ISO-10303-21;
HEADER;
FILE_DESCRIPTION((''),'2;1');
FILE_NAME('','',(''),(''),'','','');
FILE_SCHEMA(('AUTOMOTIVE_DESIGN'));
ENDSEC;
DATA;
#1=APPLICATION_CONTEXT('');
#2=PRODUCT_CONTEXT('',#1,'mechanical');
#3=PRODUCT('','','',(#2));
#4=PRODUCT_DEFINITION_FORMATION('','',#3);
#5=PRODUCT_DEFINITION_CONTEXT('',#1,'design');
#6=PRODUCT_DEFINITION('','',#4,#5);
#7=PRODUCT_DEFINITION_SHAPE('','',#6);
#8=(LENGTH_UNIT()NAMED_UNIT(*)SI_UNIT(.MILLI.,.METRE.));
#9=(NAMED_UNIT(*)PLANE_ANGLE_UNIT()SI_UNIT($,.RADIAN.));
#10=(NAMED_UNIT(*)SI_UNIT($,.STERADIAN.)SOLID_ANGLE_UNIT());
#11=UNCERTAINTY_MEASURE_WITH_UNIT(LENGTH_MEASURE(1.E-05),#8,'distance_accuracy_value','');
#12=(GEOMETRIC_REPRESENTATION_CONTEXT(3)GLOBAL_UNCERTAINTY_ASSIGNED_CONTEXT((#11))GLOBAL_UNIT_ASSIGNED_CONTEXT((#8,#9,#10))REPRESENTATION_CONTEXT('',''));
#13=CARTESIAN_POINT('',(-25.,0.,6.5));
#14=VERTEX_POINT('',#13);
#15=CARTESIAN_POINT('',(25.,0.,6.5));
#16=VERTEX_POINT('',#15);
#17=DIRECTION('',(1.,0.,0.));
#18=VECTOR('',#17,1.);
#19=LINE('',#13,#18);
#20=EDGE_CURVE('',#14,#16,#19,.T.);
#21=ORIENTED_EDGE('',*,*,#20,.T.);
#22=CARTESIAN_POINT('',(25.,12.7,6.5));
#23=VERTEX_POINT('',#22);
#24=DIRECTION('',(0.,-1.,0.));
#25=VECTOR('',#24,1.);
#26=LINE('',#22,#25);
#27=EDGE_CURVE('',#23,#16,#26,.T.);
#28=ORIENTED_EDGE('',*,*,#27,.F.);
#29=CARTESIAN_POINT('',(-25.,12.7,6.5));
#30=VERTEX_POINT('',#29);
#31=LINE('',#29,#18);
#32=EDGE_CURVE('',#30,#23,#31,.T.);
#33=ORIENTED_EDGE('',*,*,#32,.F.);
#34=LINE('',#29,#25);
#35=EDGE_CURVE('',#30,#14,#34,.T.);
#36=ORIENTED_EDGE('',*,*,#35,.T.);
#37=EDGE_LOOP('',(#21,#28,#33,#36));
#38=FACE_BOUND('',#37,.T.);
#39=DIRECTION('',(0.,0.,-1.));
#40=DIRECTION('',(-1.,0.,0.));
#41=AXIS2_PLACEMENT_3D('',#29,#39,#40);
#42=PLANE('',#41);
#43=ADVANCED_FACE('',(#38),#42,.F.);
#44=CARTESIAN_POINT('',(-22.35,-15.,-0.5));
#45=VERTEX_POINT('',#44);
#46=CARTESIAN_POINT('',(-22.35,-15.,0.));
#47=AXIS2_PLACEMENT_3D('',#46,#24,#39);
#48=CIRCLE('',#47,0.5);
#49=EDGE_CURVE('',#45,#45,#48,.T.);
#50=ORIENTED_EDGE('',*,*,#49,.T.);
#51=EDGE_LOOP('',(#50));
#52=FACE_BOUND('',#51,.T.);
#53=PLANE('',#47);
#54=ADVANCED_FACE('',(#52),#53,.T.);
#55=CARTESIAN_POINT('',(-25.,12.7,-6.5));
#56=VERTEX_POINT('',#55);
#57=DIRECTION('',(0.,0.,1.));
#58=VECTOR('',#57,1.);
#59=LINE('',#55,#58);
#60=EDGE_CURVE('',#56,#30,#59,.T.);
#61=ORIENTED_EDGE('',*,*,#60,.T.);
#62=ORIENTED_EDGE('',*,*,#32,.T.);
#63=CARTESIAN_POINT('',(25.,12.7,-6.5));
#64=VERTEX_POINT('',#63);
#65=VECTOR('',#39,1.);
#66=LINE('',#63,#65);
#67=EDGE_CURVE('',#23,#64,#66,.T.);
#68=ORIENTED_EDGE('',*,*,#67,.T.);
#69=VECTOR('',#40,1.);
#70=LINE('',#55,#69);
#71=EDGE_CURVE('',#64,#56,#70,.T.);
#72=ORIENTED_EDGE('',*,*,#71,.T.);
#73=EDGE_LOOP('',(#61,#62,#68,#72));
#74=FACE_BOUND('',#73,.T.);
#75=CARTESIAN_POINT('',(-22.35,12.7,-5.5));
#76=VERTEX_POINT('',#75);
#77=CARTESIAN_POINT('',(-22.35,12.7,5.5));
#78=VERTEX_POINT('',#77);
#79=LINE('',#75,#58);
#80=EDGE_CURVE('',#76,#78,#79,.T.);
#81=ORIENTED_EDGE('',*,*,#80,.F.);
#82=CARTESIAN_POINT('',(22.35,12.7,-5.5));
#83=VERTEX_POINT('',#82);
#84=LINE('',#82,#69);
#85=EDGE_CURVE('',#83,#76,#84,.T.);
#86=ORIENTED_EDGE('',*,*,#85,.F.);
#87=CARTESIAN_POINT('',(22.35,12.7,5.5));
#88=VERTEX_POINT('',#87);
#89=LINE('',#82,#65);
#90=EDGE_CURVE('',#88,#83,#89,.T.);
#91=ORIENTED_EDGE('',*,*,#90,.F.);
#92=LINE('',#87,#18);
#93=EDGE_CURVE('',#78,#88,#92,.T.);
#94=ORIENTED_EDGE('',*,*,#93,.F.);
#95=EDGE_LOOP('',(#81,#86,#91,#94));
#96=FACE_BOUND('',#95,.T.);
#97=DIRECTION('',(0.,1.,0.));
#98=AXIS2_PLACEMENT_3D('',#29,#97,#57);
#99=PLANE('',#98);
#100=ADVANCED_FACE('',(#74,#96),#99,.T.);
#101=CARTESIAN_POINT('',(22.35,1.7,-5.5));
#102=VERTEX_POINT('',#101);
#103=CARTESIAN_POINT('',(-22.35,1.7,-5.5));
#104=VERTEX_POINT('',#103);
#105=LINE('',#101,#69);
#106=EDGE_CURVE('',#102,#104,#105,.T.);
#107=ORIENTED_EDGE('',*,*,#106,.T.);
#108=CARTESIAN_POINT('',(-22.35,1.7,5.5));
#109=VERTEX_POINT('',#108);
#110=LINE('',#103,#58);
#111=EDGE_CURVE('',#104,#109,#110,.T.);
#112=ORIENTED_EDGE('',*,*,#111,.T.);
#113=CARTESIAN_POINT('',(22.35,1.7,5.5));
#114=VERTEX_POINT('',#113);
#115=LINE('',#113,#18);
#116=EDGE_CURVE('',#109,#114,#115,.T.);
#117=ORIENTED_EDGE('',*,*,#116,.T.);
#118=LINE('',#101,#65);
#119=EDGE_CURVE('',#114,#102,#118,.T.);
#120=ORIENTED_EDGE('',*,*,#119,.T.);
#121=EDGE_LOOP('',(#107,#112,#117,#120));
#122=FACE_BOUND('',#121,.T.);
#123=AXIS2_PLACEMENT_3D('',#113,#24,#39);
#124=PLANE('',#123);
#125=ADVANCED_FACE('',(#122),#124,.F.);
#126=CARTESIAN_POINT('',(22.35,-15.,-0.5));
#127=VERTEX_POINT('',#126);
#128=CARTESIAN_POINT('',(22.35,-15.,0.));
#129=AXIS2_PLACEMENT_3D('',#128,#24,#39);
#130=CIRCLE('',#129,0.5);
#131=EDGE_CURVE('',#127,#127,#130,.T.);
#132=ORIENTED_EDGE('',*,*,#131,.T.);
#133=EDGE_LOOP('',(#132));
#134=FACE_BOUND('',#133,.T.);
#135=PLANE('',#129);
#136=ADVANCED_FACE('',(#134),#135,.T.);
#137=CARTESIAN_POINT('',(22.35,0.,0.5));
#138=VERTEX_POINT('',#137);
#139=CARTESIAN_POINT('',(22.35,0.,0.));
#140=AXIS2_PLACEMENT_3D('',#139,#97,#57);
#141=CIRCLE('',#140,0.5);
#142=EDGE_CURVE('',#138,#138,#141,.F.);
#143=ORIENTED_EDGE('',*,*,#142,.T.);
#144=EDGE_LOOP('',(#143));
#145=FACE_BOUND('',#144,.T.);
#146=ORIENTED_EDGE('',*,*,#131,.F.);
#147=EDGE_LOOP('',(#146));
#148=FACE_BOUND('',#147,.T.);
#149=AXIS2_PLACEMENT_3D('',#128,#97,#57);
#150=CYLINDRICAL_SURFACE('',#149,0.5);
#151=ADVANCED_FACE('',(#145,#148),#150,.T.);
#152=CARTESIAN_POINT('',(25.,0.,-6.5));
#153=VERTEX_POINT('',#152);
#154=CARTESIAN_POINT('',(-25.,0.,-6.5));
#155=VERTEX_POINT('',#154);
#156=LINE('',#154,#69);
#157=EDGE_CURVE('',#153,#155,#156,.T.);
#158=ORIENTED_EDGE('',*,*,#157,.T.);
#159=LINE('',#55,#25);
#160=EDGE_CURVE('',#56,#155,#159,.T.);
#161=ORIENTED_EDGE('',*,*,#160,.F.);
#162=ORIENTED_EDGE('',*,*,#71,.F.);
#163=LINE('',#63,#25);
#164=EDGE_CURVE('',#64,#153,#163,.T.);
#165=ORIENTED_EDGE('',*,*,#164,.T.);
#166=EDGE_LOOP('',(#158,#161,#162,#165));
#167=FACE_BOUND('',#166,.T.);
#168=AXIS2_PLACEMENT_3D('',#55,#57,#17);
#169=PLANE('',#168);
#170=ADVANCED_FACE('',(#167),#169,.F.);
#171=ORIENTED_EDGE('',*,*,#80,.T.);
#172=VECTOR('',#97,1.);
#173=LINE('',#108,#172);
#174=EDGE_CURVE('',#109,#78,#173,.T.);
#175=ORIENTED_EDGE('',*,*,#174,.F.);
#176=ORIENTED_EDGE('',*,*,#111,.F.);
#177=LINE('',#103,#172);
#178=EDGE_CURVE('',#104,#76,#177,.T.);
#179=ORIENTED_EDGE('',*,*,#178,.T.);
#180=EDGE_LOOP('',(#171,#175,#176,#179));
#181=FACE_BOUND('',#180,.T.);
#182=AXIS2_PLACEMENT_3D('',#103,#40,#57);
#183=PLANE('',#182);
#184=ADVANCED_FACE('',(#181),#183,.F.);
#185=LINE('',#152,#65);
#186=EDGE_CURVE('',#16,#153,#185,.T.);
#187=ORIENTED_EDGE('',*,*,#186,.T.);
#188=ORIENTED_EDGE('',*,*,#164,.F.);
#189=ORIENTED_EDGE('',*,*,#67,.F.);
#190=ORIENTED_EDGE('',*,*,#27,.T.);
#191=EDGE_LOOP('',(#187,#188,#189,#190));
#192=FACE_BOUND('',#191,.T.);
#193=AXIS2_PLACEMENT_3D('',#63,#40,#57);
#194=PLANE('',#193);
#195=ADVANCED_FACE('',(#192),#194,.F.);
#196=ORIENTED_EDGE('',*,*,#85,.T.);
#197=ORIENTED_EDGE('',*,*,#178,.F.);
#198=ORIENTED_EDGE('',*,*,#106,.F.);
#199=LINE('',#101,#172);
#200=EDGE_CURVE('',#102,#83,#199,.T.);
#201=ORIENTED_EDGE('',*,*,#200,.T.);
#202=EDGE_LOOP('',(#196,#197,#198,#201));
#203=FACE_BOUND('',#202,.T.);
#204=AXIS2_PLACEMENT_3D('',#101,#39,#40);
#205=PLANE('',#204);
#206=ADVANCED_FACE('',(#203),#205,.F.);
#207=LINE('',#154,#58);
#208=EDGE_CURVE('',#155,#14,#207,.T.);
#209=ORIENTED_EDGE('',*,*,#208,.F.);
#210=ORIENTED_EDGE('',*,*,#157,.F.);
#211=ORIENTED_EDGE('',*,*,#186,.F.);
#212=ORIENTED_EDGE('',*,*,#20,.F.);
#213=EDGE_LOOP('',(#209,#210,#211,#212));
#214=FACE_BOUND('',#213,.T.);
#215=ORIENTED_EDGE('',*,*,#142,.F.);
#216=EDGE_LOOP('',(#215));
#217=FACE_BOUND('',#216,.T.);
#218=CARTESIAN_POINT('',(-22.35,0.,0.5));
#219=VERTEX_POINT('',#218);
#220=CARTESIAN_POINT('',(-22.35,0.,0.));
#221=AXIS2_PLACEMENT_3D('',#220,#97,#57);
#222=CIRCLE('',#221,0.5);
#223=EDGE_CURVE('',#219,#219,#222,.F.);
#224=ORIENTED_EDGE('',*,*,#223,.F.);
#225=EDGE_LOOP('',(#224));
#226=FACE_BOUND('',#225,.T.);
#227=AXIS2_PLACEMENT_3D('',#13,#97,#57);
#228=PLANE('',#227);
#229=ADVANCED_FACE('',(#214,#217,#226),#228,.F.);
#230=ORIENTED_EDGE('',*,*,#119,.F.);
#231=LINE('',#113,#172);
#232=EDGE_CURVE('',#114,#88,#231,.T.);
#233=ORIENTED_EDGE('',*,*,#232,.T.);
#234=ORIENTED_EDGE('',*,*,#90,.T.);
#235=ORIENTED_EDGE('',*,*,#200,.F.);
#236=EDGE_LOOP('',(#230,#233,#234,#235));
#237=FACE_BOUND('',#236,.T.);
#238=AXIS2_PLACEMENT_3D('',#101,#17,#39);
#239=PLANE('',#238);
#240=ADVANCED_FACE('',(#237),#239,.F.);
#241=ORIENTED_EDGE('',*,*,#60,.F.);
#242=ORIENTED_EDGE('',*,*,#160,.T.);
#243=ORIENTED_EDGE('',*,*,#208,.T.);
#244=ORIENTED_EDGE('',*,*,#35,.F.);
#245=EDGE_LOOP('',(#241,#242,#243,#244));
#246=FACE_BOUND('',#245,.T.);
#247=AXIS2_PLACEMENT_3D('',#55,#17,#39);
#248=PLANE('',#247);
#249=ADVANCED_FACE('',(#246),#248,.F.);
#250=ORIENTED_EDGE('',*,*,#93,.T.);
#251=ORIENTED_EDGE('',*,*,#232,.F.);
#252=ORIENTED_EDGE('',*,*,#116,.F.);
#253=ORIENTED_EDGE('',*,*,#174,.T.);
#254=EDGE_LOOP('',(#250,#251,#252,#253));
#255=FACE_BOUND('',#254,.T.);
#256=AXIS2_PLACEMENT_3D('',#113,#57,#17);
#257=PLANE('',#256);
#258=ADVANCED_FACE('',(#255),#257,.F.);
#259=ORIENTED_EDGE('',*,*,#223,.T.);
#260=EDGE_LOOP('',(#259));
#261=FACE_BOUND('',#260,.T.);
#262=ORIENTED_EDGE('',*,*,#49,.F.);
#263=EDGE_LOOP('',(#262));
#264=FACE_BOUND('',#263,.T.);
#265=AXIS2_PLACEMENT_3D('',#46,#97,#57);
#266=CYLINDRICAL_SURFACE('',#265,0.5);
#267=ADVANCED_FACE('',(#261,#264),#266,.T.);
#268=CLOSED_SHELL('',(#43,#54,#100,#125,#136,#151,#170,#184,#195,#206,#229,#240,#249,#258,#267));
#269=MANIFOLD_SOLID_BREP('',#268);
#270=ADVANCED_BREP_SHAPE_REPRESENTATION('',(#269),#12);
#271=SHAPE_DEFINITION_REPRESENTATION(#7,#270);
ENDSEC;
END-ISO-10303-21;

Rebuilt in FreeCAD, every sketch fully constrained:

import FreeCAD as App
import Part
import Sketcher

V = App.Vector


def add_polygon(sketch, points):
    """Adds a closed chain of lines whose ends are joined by coincident constraints."""
    first, n = sketch.GeometryCount, len(points)
    for a, b in zip(points, points[1:] + points[:1]):
        sketch.addGeometry(Part.LineSegment(App.Vector(*a, 0), App.Vector(*b, 0)), False)
    for i in range(n):
        sketch.addConstraint(Sketcher.Constraint("Coincident", first + i, 2, first + (i + 1) % n, 1))

doc = App.newDocument("Part")
body = doc.addObject("PartDesign::Body", "Body")

# Sketch on XZ plane
sketch1 = body.newObject("Sketcher::SketchObject", "Sketch")
sketch1.AttachmentSupport = (doc.getObject("XZ_Plane"), [""])
sketch1.MapMode = "FlatFace"
add_polygon(sketch1, [(-25, -6.5), (-25, 6.5), (25, 6.5), (25, -6.5)])  # lines 0-3
sketch1.addConstraint([
    Sketcher.Constraint("Vertical", 0),
    Sketcher.Constraint("Horizontal", 1),
    Sketcher.Constraint("Vertical", 2),
    Sketcher.Constraint("Horizontal", 3),
    Sketcher.Constraint("Symmetric", 0, 2, 2, 2, -1, 1),
    Sketcher.Constraint("DistanceX", 1, 1, 1, 2, 50.0),
    Sketcher.Constraint("DistanceY", 0, 1, 0, 2, 13.0),
])
pad1 = body.newObject("PartDesign::Pad", "Pad")
pad1.Profile = sketch1
pad1.Length = 12.7
pad1.Reversed = True

# Sketch on XZ plane
sketch2 = body.newObject("Sketcher::SketchObject", "Sketch001")
sketch2.AttachmentSupport = (doc.getObject("XZ_Plane"), [""])
sketch2.MapMode = "FlatFace"
sketch2.AttachmentOffset = App.Placement(V(0, 0, -12.7), App.Rotation())
add_polygon(sketch2, [(22.35, 5.5), (22.35, -5.5), (-22.35, -5.5), (-22.35, 5.5)])  # lines 0-3
sketch2.addConstraint([
    Sketcher.Constraint("Vertical", 0),
    Sketcher.Constraint("Horizontal", 1),
    Sketcher.Constraint("Vertical", 2),
    Sketcher.Constraint("Horizontal", 3),
    Sketcher.Constraint("Symmetric", 0, 2, 2, 2, -1, 1),
    Sketcher.Constraint("DistanceY", 0, 2, 0, 1, 11.0),
    Sketcher.Constraint("DistanceX", 1, 2, 1, 1, 44.7),
])
pocket1 = body.newObject("PartDesign::Pocket", "Pocket")
pocket1.Profile = sketch2
pocket1.Length = 11
pocket1.Reversed = True

# Sketch on XZ plane
sketch3 = body.newObject("Sketcher::SketchObject", "Sketch002")
sketch3.AttachmentSupport = (doc.getObject("XZ_Plane"), [""])
sketch3.MapMode = "FlatFace"
sketch3.addGeometry([
    Part.Circle(V(-22.35, 0, 0), V(0, 0, 1), 0.5),
    Part.Circle(V(22.35, 0, 0), V(0, 0, 1), 0.5),
], False)
sketch3.addConstraint([
    Sketcher.Constraint("Equal", 0, 1),
    Sketcher.Constraint("Symmetric", 0, 3, 1, 3, -1, 1),
    Sketcher.Constraint("PointOnObject", 0, 3, -1),
    Sketcher.Constraint("Diameter", 0, 1.0),
    Sketcher.Constraint("DistanceX", 0, 3, 1, 3, 44.7),
])
pad2 = body.newObject("PartDesign::Pad", "Pad001")
pad2.Profile = sketch3
pad2.Length = 15

doc.recompute()
